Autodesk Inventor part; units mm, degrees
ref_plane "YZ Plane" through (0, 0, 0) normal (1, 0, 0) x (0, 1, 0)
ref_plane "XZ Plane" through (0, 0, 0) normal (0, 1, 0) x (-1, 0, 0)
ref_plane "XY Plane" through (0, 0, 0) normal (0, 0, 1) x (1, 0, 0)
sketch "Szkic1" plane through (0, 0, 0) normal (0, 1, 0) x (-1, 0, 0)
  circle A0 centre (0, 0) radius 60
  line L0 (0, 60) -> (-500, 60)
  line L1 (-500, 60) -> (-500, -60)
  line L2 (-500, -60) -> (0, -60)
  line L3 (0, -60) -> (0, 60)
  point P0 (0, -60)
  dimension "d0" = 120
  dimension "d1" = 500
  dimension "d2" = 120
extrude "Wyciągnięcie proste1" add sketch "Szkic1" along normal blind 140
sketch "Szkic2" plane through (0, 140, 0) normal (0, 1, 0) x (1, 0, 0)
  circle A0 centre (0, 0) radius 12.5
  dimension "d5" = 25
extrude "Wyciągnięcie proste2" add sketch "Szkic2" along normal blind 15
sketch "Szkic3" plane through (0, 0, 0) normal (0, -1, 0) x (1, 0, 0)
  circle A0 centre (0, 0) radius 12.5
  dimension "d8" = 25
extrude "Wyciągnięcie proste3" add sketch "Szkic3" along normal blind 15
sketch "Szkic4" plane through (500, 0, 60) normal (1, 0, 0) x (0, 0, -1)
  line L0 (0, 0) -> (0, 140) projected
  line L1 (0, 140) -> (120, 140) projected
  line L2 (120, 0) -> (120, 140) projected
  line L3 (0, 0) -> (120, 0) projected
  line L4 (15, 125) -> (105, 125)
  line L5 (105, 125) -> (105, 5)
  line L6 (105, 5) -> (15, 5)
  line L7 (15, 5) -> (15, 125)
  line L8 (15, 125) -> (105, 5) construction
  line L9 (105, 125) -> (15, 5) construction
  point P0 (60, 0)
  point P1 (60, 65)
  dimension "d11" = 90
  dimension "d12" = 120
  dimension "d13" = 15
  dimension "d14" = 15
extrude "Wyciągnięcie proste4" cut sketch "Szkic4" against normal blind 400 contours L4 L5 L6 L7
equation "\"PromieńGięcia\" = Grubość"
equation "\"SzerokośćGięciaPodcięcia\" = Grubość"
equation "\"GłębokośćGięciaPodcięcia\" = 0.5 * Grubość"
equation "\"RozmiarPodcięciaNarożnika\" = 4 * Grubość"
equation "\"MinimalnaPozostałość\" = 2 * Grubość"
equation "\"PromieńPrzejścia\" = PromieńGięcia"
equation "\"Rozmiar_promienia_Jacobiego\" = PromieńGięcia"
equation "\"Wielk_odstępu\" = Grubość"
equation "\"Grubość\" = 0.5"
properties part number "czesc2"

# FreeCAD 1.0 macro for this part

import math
import FreeCAD as App
import Part
import Sketcher


def add_polygon(sketch, points):
    """Adds a closed chain of lines whose ends are joined by coincident constraints."""
    first, n = sketch.GeometryCount, len(points)
    for a, b in zip(points, points[1:] + points[:1]):
        sketch.addGeometry(Part.LineSegment(App.Vector(*a, 0), App.Vector(*b, 0)), False)
    for i in range(n):
        sketch.addConstraint(Sketcher.Constraint("Coincident", first + i, 2, first + (i + 1) % n, 1))

doc = App.newDocument("Part")
body = doc.addObject("PartDesign::Body", "Body")

sketch1 = body.newObject("Sketcher::SketchObject", "Sketch")
sketch1.AttachmentSupport = (doc.getObject("XZ_Plane"), [""])
sketch1.MapMode = "FlatFace"
sketch1.addGeometry([
    Part.ArcOfCircle(Part.Circle(App.Vector(0, 0, 0), App.Vector(0, 0, 1), 60), math.radians(90), math.radians(270)),
    Part.LineSegment(App.Vector(0, 60, 0), App.Vector(500, 60, 0)),
    Part.LineSegment(App.Vector(500, 60, 0), App.Vector(500, -60, 0)),
    Part.LineSegment(App.Vector(500, -60, 0), App.Vector(0, -60, 0)),
], False)
sketch1.addConstraint([
    Sketcher.Constraint("Tangent", 0, 1, 1, 1),
    Sketcher.Constraint("Coincident", 1, 2, 2, 1),
    Sketcher.Constraint("Coincident", 2, 2, 3, 1),
    Sketcher.Constraint("Tangent", 3, 2, 0, 2),
    Sketcher.Constraint("Horizontal", 1),
    Sketcher.Constraint("Vertical", 2),
    Sketcher.Constraint("Horizontal", 3),
    Sketcher.Constraint("Coincident", 0, 3, -1, 1),
    Sketcher.Constraint("Radius", 0, 60.0),
    Sketcher.Constraint("DistanceX", 1, 1, 1, 2, 500.0),
])
pad1 = body.newObject("PartDesign::Pad", "Pad")
pad1.Profile = sketch1
pad1.Length = 140
pad1.Reversed = True

sketch2 = body.newObject("Sketcher::SketchObject", "Sketch001")
sketch2.AttachmentSupport = (doc.getObject("XZ_Plane"), [""])
sketch2.MapMode = "FlatFace"
sketch2.AttachmentOffset = App.Placement(App.Vector(0, 0, -140), App.Rotation())
sketch2.addGeometry(Part.Circle(App.Vector(0, 0, 0), App.Vector(0, 0, 1), 12), False)
sketch2.addConstraint([
    Sketcher.Constraint("Coincident", 0, 3, -1, 1),
    Sketcher.Constraint("Diameter", 0, 25.0),
])
pad2 = body.newObject("PartDesign::Pad", "Pad001")
pad2.Profile = sketch2
pad2.Length = 15
pad2.Reversed = True

sketch3 = body.newObject("Sketcher::SketchObject", "Sketch002")
sketch3.AttachmentSupport = (doc.getObject("XZ_Plane"), [""])
sketch3.MapMode = "FlatFace"
sketch3.addGeometry(Part.Circle(App.Vector(0, 0, 0), App.Vector(0, 0, 1), 12), False)
sketch3.addConstraint([
    Sketcher.Constraint("Coincident", 0, 3, -1, 1),
    Sketcher.Constraint("Diameter", 0, 25.0),
])
pad3 = body.newObject("PartDesign::Pad", "Pad002")
pad3.Profile = sketch3
pad3.Length = 15

sketch4 = body.newObject("Sketcher::SketchObject", "Sketch003")
sketch4.AttachmentSupport = (doc.getObject("YZ_Plane"), [""])
sketch4.MapMode = "FlatFace"
sketch4.AttachmentOffset = App.Placement(App.Vector(0, 0, 500), App.Rotation())
add_polygon(sketch4, [(125, -45), (125, 45), (5, 45), (5, -45)])
sketch4.addConstraint([
    Sketcher.Constraint("Vertical", 0),
    Sketcher.Constraint("Horizontal", 1),
    Sketcher.Constraint("Vertical", 2),
    Sketcher.Constraint("Horizontal", 3),
    Sketcher.Constraint("DistanceX", 1, 2, 1, 1, 120.0),
    Sketcher.Constraint("DistanceY", 0, 1, 0, 2, 90.0),
    Sketcher.Constraint("DistanceX", -1, 1, 0, 2, 125.0),
    Sketcher.Constraint("DistanceY", -1, 1, 0, 2, 45.0),
])
pocket1 = body.newObject("PartDesign::Pocket", "Pocket")
pocket1.Profile = sketch4
pocket1.Length = 400

doc.recompute()
